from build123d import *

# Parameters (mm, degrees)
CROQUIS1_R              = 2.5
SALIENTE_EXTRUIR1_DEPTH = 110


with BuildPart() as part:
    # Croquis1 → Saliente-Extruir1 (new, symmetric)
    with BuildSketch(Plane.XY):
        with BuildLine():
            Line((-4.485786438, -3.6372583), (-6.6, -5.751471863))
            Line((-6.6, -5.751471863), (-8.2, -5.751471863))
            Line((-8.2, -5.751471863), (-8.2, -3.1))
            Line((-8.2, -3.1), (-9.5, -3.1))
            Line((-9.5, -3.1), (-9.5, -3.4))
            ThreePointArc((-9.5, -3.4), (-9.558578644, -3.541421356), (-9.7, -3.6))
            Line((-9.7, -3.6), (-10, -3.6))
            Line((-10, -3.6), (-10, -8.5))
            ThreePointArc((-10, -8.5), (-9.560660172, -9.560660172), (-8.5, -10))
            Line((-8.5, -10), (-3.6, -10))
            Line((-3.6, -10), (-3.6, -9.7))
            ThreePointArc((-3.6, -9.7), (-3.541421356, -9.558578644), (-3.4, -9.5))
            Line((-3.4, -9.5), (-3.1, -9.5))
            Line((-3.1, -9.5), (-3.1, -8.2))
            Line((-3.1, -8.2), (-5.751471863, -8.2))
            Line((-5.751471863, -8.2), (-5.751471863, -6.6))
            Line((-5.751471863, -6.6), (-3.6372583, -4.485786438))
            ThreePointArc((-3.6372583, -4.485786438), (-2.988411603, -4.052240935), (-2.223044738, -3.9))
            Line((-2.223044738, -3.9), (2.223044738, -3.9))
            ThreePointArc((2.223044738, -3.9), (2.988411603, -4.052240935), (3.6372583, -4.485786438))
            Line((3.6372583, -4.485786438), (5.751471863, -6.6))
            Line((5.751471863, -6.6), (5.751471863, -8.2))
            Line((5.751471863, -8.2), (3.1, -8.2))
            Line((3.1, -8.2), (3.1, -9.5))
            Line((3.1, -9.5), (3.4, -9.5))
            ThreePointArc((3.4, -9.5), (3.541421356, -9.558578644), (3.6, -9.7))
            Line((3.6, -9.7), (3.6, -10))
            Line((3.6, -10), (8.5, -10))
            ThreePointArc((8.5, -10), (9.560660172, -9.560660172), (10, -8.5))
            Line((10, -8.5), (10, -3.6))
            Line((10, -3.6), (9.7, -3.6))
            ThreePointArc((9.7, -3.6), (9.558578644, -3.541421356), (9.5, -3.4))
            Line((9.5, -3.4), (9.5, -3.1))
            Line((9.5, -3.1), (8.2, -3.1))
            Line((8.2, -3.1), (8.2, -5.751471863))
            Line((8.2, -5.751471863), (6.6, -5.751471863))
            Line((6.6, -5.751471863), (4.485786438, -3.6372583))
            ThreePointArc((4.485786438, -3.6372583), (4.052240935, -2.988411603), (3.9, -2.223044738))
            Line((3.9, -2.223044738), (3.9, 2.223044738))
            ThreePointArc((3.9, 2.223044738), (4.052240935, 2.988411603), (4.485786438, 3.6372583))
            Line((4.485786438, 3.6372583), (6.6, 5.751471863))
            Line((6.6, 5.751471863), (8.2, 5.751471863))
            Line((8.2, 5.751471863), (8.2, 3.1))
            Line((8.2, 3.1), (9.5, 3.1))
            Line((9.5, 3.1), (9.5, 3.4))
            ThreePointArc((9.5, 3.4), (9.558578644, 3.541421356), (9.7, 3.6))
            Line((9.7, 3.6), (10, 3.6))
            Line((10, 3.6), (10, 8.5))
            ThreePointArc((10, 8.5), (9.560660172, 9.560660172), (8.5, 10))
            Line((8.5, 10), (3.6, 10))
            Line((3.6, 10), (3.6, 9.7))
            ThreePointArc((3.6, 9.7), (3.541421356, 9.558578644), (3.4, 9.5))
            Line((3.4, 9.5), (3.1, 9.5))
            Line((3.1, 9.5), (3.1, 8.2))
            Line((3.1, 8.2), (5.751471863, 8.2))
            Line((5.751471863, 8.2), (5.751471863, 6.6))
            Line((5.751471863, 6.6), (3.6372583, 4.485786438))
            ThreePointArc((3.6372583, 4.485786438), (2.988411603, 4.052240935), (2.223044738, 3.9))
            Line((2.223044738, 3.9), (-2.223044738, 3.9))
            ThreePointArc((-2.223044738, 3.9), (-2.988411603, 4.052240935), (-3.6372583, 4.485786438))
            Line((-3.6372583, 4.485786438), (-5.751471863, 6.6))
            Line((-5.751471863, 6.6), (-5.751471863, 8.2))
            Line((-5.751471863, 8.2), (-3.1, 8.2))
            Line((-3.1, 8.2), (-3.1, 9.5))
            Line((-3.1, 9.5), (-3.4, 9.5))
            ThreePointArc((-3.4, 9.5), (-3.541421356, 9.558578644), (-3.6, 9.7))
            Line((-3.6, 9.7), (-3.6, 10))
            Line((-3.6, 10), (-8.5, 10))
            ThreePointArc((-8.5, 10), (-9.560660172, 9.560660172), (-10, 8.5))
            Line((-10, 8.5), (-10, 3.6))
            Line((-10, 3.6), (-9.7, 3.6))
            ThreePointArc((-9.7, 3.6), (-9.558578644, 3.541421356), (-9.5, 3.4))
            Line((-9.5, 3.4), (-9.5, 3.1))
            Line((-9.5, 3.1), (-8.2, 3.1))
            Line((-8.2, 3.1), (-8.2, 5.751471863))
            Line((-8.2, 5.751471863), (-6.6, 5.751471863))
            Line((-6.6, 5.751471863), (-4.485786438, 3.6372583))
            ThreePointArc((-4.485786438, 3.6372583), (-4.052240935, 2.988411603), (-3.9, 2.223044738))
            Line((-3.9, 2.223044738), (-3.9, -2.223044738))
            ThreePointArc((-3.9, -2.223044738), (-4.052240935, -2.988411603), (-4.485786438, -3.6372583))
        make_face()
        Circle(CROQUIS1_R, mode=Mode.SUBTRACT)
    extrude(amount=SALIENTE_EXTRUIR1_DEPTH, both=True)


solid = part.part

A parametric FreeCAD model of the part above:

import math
import FreeCAD as App
import Part
import Sketcher
from FreeCAD import Vector
Q = App.Units.Quantity

doc = App.newDocument("Part")
body = doc.addObject("PartDesign::Body", "Body")

sketch1 = body.newObject("Sketcher::SketchObject", "Sketch")
sketch1.AttachmentSupport = (doc.getObject("XY_Plane"), [""])
sketch1.MapMode = "FlatFace"
sketch1.addGeometry([
    Part.LineSegment(Vector(-4.49, -3.64, 0), Vector(-6.6, -5.75, 0)),
    Part.LineSegment(Vector(-6.6, -5.75, 0), Vector(-8.2, -5.75, 0)),
    Part.LineSegment(Vector(-8.2, -5.75, 0), Vector(-8.2, -3.1, 0)),
    Part.LineSegment(Vector(-8.2, -3.1, 0), Vector(-9.5, -3.1, 0)),
    Part.LineSegment(Vector(-9.5, -3.1, 0), Vector(-9.5, -3.4, 0)),
    Part.ArcOfCircle(Part.Circle(Vector(-9.7, -3.4, 0), Vector(0, 0, 1), 0.2), math.radians(-90), math.radians(0)),
    Part.LineSegment(Vector(-9.7, -3.6, 0), Vector(-10, -3.6, 0)),
    Part.LineSegment(Vector(-10, -3.6, 0), Vector(-10, -8.5, 0)),
    Part.ArcOfCircle(Part.Circle(Vector(-8.5, -8.5, 0), Vector(0, 0, 1), 1.5), math.radians(180), math.radians(270)),
    Part.LineSegment(Vector(-8.5, -10, 0), Vector(-3.6, -10, 0)),
    Part.LineSegment(Vector(-3.6, -10, 0), Vector(-3.6, -9.7, 0)),
    Part.ArcOfCircle(Part.Circle(Vector(-3.4, -9.7, 0), Vector(0, 0, 1), 0.2), math.radians(90), math.radians(180)),
    Part.LineSegment(Vector(-3.4, -9.5, 0), Vector(-3.1, -9.5, 0)),
    Part.LineSegment(Vector(-3.1, -9.5, 0), Vector(-3.1, -8.2, 0)),
    Part.LineSegment(Vector(-3.1, -8.2, 0), Vector(-5.75, -8.2, 0)),
    Part.LineSegment(Vector(-5.75, -8.2, 0), Vector(-5.75, -6.6, 0)),
    Part.LineSegment(Vector(-5.75, -6.6, 0), Vector(-3.64, -4.49, 0)),
    Part.ArcOfCircle(Part.Circle(Vector(-2.22, -5.9, 0), Vector(0, 0, 1), 2), math.radians(90), math.radians(135)),
    Part.LineSegment(Vector(-2.22, -3.9, 0), Vector(2.22, -3.9, 0)),
    Part.ArcOfCircle(Part.Circle(Vector(2.22, -5.9, 0), Vector(0, 0, 1), 2), math.radians(45), math.radians(90)),
    Part.LineSegment(Vector(3.64, -4.49, 0), Vector(5.75, -6.6, 0)),
    Part.LineSegment(Vector(5.75, -6.6, 0), Vector(5.75, -8.2, 0)),
    Part.LineSegment(Vector(5.75, -8.2, 0), Vector(3.1, -8.2, 0)),
    Part.LineSegment(Vector(3.1, -8.2, 0), Vector(3.1, -9.5, 0)),
    Part.LineSegment(Vector(3.1, -9.5, 0), Vector(3.4, -9.5, 0)),
    Part.ArcOfCircle(Part.Circle(Vector(3.4, -9.7, 0), Vector(0, 0, 1), 0.2), math.radians(0), math.radians(90)),
    Part.LineSegment(Vector(3.6, -9.7, 0), Vector(3.6, -10, 0)),
    Part.LineSegment(Vector(3.6, -10, 0), Vector(8.5, -10, 0)),
    Part.ArcOfCircle(Part.Circle(Vector(8.5, -8.5, 0), Vector(0, 0, 1), 1.5), math.radians(-90), math.radians(0)),
    Part.LineSegment(Vector(10, -8.5, 0), Vector(10, -3.6, 0)),
    Part.LineSegment(Vector(10, -3.6, 0), Vector(9.7, -3.6, 0)),
    Part.ArcOfCircle(Part.Circle(Vector(9.7, -3.4, 0), Vector(0, 0, 1), 0.2), math.radians(-180), math.radians(-90)),
    Part.LineSegment(Vector(9.5, -3.4, 0), Vector(9.5, -3.1, 0)),
    Part.LineSegment(Vector(9.5, -3.1, 0), Vector(8.2, -3.1, 0)),
    Part.LineSegment(Vector(8.2, -3.1, 0), Vector(8.2, -5.75, 0)),
    Part.LineSegment(Vector(8.2, -5.75, 0), Vector(6.6, -5.75, 0)),
    Part.LineSegment(Vector(6.6, -5.75, 0), Vector(4.49, -3.64, 0)),
    Part.ArcOfCircle(Part.Circle(Vector(5.9, -2.22, 0), Vector(0, 0, 1), 2), math.radians(180), math.radians(225)),
    Part.LineSegment(Vector(3.9, -2.22, 0), Vector(3.9, 2.22, 0)),
    Part.ArcOfCircle(Part.Circle(Vector(5.9, 2.22, 0), Vector(0, 0, 1), 2), math.radians(135), math.radians(180)),
    Part.LineSegment(Vector(4.49, 3.64, 0), Vector(6.6, 5.75, 0)),
    Part.LineSegment(Vector(6.6, 5.75, 0), Vector(8.2, 5.75, 0)),
    Part.LineSegment(Vector(8.2, 5.75, 0), Vector(8.2, 3.1, 0)),
    Part.LineSegment(Vector(8.2, 3.1, 0), Vector(9.5, 3.1, 0)),
    Part.LineSegment(Vector(9.5, 3.1, 0), Vector(9.5, 3.4, 0)),
    Part.ArcOfCircle(Part.Circle(Vector(9.7, 3.4, 0), Vector(0, 0, 1), 0.2), math.radians(90), math.radians(180)),
    Part.LineSegment(Vector(9.7, 3.6, 0), Vector(10, 3.6, 0)),
    Part.LineSegment(Vector(10, 3.6, 0), Vector(10, 8.5, 0)),
    Part.ArcOfCircle(Part.Circle(Vector(8.5, 8.5, 0), Vector(0, 0, 1), 1.5), math.radians(0), math.radians(90)),
    Part.LineSegment(Vector(8.5, 10, 0), Vector(3.6, 10, 0)),
    Part.LineSegment(Vector(3.6, 10, 0), Vector(3.6, 9.7, 0)),
    Part.ArcOfCircle(Part.Circle(Vector(3.4, 9.7, 0), Vector(0, 0, 1), 0.2), math.radians(-90), math.radians(0)),
    Part.LineSegment(Vector(3.4, 9.5, 0), Vector(3.1, 9.5, 0)),
    Part.LineSegment(Vector(3.1, 9.5, 0), Vector(3.1, 8.2, 0)),
    Part.LineSegment(Vector(3.1, 8.2, 0), Vector(5.75, 8.2, 0)),
    Part.LineSegment(Vector(5.75, 8.2, 0), Vector(5.75, 6.6, 0)),
    Part.LineSegment(Vector(5.75, 6.6, 0), Vector(3.64, 4.49, 0)),
    Part.ArcOfCircle(Part.Circle(Vector(2.22, 5.9, 0), Vector(0, 0, 1), 2), math.radians(-90), math.radians(-45)),
    Part.LineSegment(Vector(2.22, 3.9, 0), Vector(-2.22, 3.9, 0)),
    Part.ArcOfCircle(Part.Circle(Vector(-2.22, 5.9, 0), Vector(0, 0, 1), 2), math.radians(-135), math.radians(-90)),
    Part.LineSegment(Vector(-3.64, 4.49, 0), Vector(-5.75, 6.6, 0)),
    Part.LineSegment(Vector(-5.75, 6.6, 0), Vector(-5.75, 8.2, 0)),
    Part.LineSegment(Vector(-5.75, 8.2, 0), Vector(-3.1, 8.2, 0)),
    Part.LineSegment(Vector(-3.1, 8.2, 0), Vector(-3.1, 9.5, 0)),
    Part.LineSegment(Vector(-3.1, 9.5, 0), Vector(-3.4, 9.5, 0)),
    Part.ArcOfCircle(Part.Circle(Vector(-3.4, 9.7, 0), Vector(0, 0, 1), 0.2), math.radians(-180), math.radians(-90)),
    Part.LineSegment(Vector(-3.6, 9.7, 0), Vector(-3.6, 10, 0)),
    Part.LineSegment(Vector(-3.6, 10, 0), Vector(-8.5, 10, 0)),
    Part.ArcOfCircle(Part.Circle(Vector(-8.5, 8.5, 0), Vector(0, 0, 1), 1.5), math.radians(90), math.radians(180)),
    Part.LineSegment(Vector(-10, 8.5, 0), Vector(-10, 3.6, 0)),
    Part.LineSegment(Vector(-10, 3.6, 0), Vector(-9.7, 3.6, 0)),
    Part.ArcOfCircle(Part.Circle(Vector(-9.7, 3.4, 0), Vector(0, 0, 1), 0.2), math.radians(0), math.radians(90)),
    Part.LineSegment(Vector(-9.5, 3.4, 0), Vector(-9.5, 3.1, 0)),
    Part.LineSegment(Vector(-9.5, 3.1, 0), Vector(-8.2, 3.1, 0)),
    Part.LineSegment(Vector(-8.2, 3.1, 0), Vector(-8.2, 5.75, 0)),
    Part.LineSegment(Vector(-8.2, 5.75, 0), Vector(-6.6, 5.75, 0)),
    Part.LineSegment(Vector(-6.6, 5.75, 0), Vector(-4.49, 3.64, 0)),
    Part.ArcOfCircle(Part.Circle(Vector(-5.9, 2.22, 0), Vector(0, 0, 1), 2), math.radians(0), math.radians(45)),
    Part.LineSegment(Vector(-3.9, 2.22, 0), Vector(-3.9, -2.22, 0)),
    Part.ArcOfCircle(Part.Circle(Vector(-5.9, -2.22, 0), Vector(0, 0, 1), 2), math.radians(-45), math.radians(0)),
    Part.Circle(Vector(0, 0, 0), Vector(0, 0, 1), 2.5),
], False)
sketch1.addConstraint([
    Sketcher.Constraint("Coincident", 0, 2, 1, 1),
    Sketcher.Constraint("Coincident", 1, 2, 2, 1),
    Sketcher.Constraint("Coincident", 2, 2, 3, 1),
    Sketcher.Constraint("Coincident", 3, 2, 4, 1),
    Sketcher.Constraint("Tangent", 4, 2, 5, 2),
    Sketcher.Constraint("Tangent", 5, 1, 6, 1),
    Sketcher.Constraint("Coincident", 6, 2, 7, 1),
    Sketcher.Constraint("Tangent", 7, 2, 8, 1),
    Sketcher.Constraint("Tangent", 8, 2, 9, 1),
    Sketcher.Constraint("Coincident", 9, 2, 10, 1),
    Sketcher.Constraint("Tangent", 10, 2, 11, 2),
    Sketcher.Constraint("Tangent", 11, 1, 12, 1),
    Sketcher.Constraint("Coincident", 12, 2, 13, 1),
    Sketcher.Constraint("Coincident", 13, 2, 14, 1),
    Sketcher.Constraint("Coincident", 14, 2, 15, 1),
    Sketcher.Constraint("Coincident", 15, 2, 16, 1),
    Sketcher.Constraint("Tangent", 16, 2, 17, 2),
    Sketcher.Constraint("Tangent", 17, 1, 18, 1),
    Sketcher.Constraint("Tangent", 18, 2, 19, 2),
    Sketcher.Constraint("Tangent", 19, 1, 20, 1),
    Sketcher.Constraint("Coincident", 20, 2, 21, 1),
    Sketcher.Constraint("Coincident", 21, 2, 22, 1),
    Sketcher.Constraint("Coincident", 22, 2, 23, 1),
    Sketcher.Constraint("Coincident", 23, 2, 24, 1),
    Sketcher.Constraint("Tangent", 24, 2, 25, 2),
    Sketcher.Constraint("Tangent", 25, 1, 26, 1),
    Sketcher.Constraint("Coincident", 26, 2, 27, 1),
    Sketcher.Constraint("Tangent", 27, 2, 28, 1),
    Sketcher.Constraint("Tangent", 28, 2, 29, 1),
    Sketcher.Constraint("Coincident", 29, 2, 30, 1),
    Sketcher.Constraint("Tangent", 30, 2, 31, 2),
    Sketcher.Constraint("Tangent", 31, 1, 32, 1),
    Sketcher.Constraint("Coincident", 32, 2, 33, 1),
    Sketcher.Constraint("Coincident", 33, 2, 34, 1),
    Sketcher.Constraint("Coincident", 34, 2, 35, 1),
    Sketcher.Constraint("Coincident", 35, 2, 36, 1),
    Sketcher.Constraint("Tangent", 36, 2, 37, 2),
    Sketcher.Constraint("Tangent", 37, 1, 38, 1),
    Sketcher.Constraint("Tangent", 38, 2, 39, 2),
    Sketcher.Constraint("Tangent", 39, 1, 40, 1),
    Sketcher.Constraint("Coincident", 40, 2, 41, 1),
    Sketcher.Constraint("Coincident", 41, 2, 42, 1),
    Sketcher.Constraint("Coincident", 42, 2, 43, 1),
    Sketcher.Constraint("Coincident", 43, 2, 44, 1),
    Sketcher.Constraint("Tangent", 44, 2, 45, 2),
    Sketcher.Constraint("Tangent", 45, 1, 46, 1),
    Sketcher.Constraint("Coincident", 46, 2, 47, 1),
    Sketcher.Constraint("Tangent", 47, 2, 48, 1),
    Sketcher.Constraint("Tangent", 48, 2, 49, 1),
    Sketcher.Constraint("Coincident", 49, 2, 50, 1),
    Sketcher.Constraint("Tangent", 50, 2, 51, 2),
    Sketcher.Constraint("Tangent", 51, 1, 52, 1),
    Sketcher.Constraint("Coincident", 52, 2, 53, 1),
    Sketcher.Constraint("Coincident", 53, 2, 54, 1),
    Sketcher.Constraint("Coincident", 54, 2, 55, 1),
    Sketcher.Constraint("Coincident", 55, 2, 56, 1),
    Sketcher.Constraint("Tangent", 56, 2, 57, 2),
    Sketcher.Constraint("Tangent", 57, 1, 58, 1),
    Sketcher.Constraint("Tangent", 58, 2, 59, 2),
    Sketcher.Constraint("Tangent", 59, 1, 60, 1),
    Sketcher.Constraint("Coincident", 60, 2, 61, 1),
    Sketcher.Constraint("Coincident", 61, 2, 62, 1),
    Sketcher.Constraint("Coincident", 62, 2, 63, 1),
    Sketcher.Constraint("Coincident", 63, 2, 64, 1),
    Sketcher.Constraint("Tangent", 64, 2, 65, 2),
    Sketcher.Constraint("Tangent", 65, 1, 66, 1),
    Sketcher.Constraint("Coincident", 66, 2, 67, 1),
    Sketcher.Constraint("Tangent", 67, 2, 68, 1),
    Sketcher.Constraint("Tangent", 68, 2, 69, 1),
    Sketcher.Constraint("Coincident", 69, 2, 70, 1),
    Sketcher.Constraint("Tangent", 70, 2, 71, 2),
    Sketcher.Constraint("Tangent", 71, 1, 72, 1),
    Sketcher.Constraint("Coincident", 72, 2, 73, 1),
    Sketcher.Constraint("Coincident", 73, 2, 74, 1),
    Sketcher.Constraint("Coincident", 74, 2, 75, 1),
    Sketcher.Constraint("Coincident", 75, 2, 76, 1),
    Sketcher.Constraint("Tangent", 76, 2, 77, 2),
    Sketcher.Constraint("Tangent", 77, 1, 78, 1),
    Sketcher.Constraint("Tangent", 78, 2, 79, 2),
    Sketcher.Constraint("Tangent", 79, 1, 0, 1),
    Sketcher.Constraint("Horizontal", 1),
    Sketcher.Constraint("Vertical", 2),
    Sketcher.Constraint("Horizontal", 3),
    Sketcher.Constraint("Vertical", 4),
    Sketcher.Constraint("Horizontal", 6),
    Sketcher.Constraint("Vertical", 7),
    Sketcher.Constraint("Horizontal", 9),
    Sketcher.Constraint("Vertical", 10),
    Sketcher.Constraint("Horizontal", 12),
    Sketcher.Constraint("Vertical", 13),
    Sketcher.Constraint("Horizontal", 14),
    Sketcher.Constraint("Vertical", 15),
    Sketcher.Constraint("Horizontal", 18),
    Sketcher.Constraint("Vertical", 21),
    Sketcher.Constraint("Horizontal", 22),
    Sketcher.Constraint("Vertical", 23),
    Sketcher.Constraint("Horizontal", 24),
    Sketcher.Constraint("Vertical", 26),
    Sketcher.Constraint("Horizontal", 27),
    Sketcher.Constraint("Vertical", 29),
    Sketcher.Constraint("Horizontal", 30),
    Sketcher.Constraint("Vertical", 32),
    Sketcher.Constraint("Horizontal", 33),
    Sketcher.Constraint("Vertical", 34),
    Sketcher.Constraint("Horizontal", 35),
    Sketcher.Constraint("Vertical", 38),
    Sketcher.Constraint("Horizontal", 41),
    Sketcher.Constraint("Vertical", 42),
    Sketcher.Constraint("Horizontal", 43),
    Sketcher.Constraint("Vertical", 44),
    Sketcher.Constraint("Horizontal", 46),
    Sketcher.Constraint("Vertical", 47),
    Sketcher.Constraint("Horizontal", 49),
    Sketcher.Constraint("Vertical", 50),
    Sketcher.Constraint("Horizontal", 52),
    Sketcher.Constraint("Vertical", 53),
    Sketcher.Constraint("Horizontal", 54),
    Sketcher.Constraint("Vertical", 55),
    Sketcher.Constraint("Horizontal", 58),
    Sketcher.Constraint("Vertical", 61),
    Sketcher.Constraint("Horizontal", 62),
    Sketcher.Constraint("Vertical", 63),
    Sketcher.Constraint("Horizontal", 64),
    Sketcher.Constraint("Vertical", 66),
    Sketcher.Constraint("Horizontal", 67),
    Sketcher.Constraint("Vertical", 69),
    Sketcher.Constraint("Horizontal", 70),
    Sketcher.Constraint("Vertical", 72),
    Sketcher.Constraint("Horizontal", 73),
    Sketcher.Constraint("Vertical", 74),
    Sketcher.Constraint("Horizontal", 75),
    Sketcher.Constraint("Vertical", 78),
    Sketcher.Constraint("Coincident", 80, 3, -1, 1),
    Sketcher.Constraint("Equal", 5, 11),
    Sketcher.Constraint("Equal", 17, 19),
    Sketcher.Constraint("Equal", 11, 25),
    Sketcher.Constraint("Equal", 8, 28),
    Sketcher.Constraint("Equal", 25, 31),
    Sketcher.Constraint("Equal", 19, 37),
    Sketcher.Constraint("Equal", 37, 39),
    Sketcher.Constraint("Equal", 31, 45),
    Sketcher.Constraint("Equal", 28, 48),
    Sketcher.Constraint("Equal", 45, 51),
    Sketcher.Constraint("Equal", 39, 57),
    Sketcher.Constraint("Equal", 57, 59),
    Sketcher.Constraint("Equal", 51, 65),
    Sketcher.Constraint("Equal", 48, 68),
    Sketcher.Constraint("Equal", 65, 71),
    Sketcher.Constraint("Equal", 59, 77),
    Sketcher.Constraint("Equal", 77, 79),
    Sketcher.Constraint("Symmetric", 5, 3, 45, 3, -1, 1),
    Sketcher.Constraint("Symmetric", 8, 3, 48, 3, -1, 1),
    Sketcher.Constraint("Symmetric", 11, 3, 51, 3, -1, 1),
    Sketcher.Constraint("Symmetric", 17, 3, 57, 3, -1, 1),
    Sketcher.Constraint("Symmetric", 25, 3, 65, 3, -1, 1),
    Sketcher.Constraint("Symmetric", 28, 3, 68, 3, -1, 1),
    Sketcher.Constraint("Symmetric", 31, 3, 71, 3, -1, 1),
    Sketcher.Constraint("Symmetric", 37, 3, 77, 3, -1, 1),
    Sketcher.Constraint("Symmetric", 0, 2, 40, 2, -1, 1),
    Sketcher.Constraint("Symmetric", 2, 2, 42, 2, -1, 1),
    Sketcher.Constraint("Symmetric", 13, 2, 53, 2, -1, 1),
    Sketcher.Constraint("Symmetric", 15, 2, 55, 2, -1, 1),
    Sketcher.Constraint("Symmetric", 19, 1, 59, 1, -1, 1),
    Sketcher.Constraint("Symmetric", 21, 2, 61, 2, -1, 1),
    Sketcher.Constraint("Symmetric", 33, 2, 73, 2, -1, 1),
    Sketcher.Constraint("Symmetric", 35, 2, 75, 2, -1, 1),
    Sketcher.Constraint("Symmetric", 11, 3, 25, 3, -2),
    Sketcher.Constraint("Symmetric", 8, 3, 28, 3, -2),
    Sketcher.Constraint("Symmetric", 5, 3, 31, 3, -2),
    Sketcher.Constraint("Symmetric", 16, 2, 19, 1, -2),
    Sketcher.Constraint("Symmetric", 14, 2, 21, 2, -2),
    Sketcher.Constraint("Symmetric", 2, 2, 33, 2, -2),
    Sketcher.Constraint("Symmetric", 0, 2, 35, 2, -2),
    Sketcher.Constraint("Parallel", 0, 16),
    Sketcher.Constraint("Perpendicular", 16, 20),
    Sketcher.Constraint("Parallel", 20, 36),
    Sketcher.Constraint("Perpendicular", 36, 40),
    Sketcher.Constraint("Vertical", 23, 2, 52, 2),
    Sketcher.Constraint("Vertical", 13, 2, 62, 2),
    Sketcher.Constraint("Equal", 6, 12),
    Sketcher.Constraint("Equal", 62, 2),
    Sketcher.Constraint("Equal", 70, 4),
    Sketcher.Constraint("Equal", 67, 7),
    Sketcher.Constraint("Equal", 4, 10),
    Sketcher.Constraint("Equal", 73, 13),
    Sketcher.Constraint("Equal", 75, 15),
    Sketcher.Constraint("Equal", 58, 38),
    Sketcher.Constraint("Equal", 0, 16),
    Sketcher.Constraint("Diameter", 80, Q("5 mm")),
    Sketcher.Constraint("Radius", 17, Q("2 mm")),
    Sketcher.Constraint("Radius", 5, Q("0.2 mm")),
    Sketcher.Constraint("Radius", 8, Q("1.5 mm")),
    Sketcher.Constraint("DistanceX", 1, 2, 1, 1, Q("1.6 mm")),
    Sketcher.Constraint("DistanceX", 3, 2, 3, 1, Q("1.3 mm")),
    Sketcher.Constraint("DistanceX", 6, 2, 6, 1, Q("0.3 mm")),
    Sketcher.Constraint("DistanceX", 9, 1, 9, 2, Q("4.9 mm")),
    Sketcher.Constraint("DistanceX", 6, 2, -1, 1, Q("10 mm")),
    Sketcher.Constraint("DistanceY", 17, 3, -1, 1, Q("5.9 mm")),
    Sketcher.Constraint("DistanceX", 14, 2, 14, 1, Q("2.651472 mm")),
])
pad1 = body.newObject("PartDesign::Pad", "Pad")
pad1.Profile = sketch1
pad1.Length = 220
pad1.Midplane = True

doc.recompute()
